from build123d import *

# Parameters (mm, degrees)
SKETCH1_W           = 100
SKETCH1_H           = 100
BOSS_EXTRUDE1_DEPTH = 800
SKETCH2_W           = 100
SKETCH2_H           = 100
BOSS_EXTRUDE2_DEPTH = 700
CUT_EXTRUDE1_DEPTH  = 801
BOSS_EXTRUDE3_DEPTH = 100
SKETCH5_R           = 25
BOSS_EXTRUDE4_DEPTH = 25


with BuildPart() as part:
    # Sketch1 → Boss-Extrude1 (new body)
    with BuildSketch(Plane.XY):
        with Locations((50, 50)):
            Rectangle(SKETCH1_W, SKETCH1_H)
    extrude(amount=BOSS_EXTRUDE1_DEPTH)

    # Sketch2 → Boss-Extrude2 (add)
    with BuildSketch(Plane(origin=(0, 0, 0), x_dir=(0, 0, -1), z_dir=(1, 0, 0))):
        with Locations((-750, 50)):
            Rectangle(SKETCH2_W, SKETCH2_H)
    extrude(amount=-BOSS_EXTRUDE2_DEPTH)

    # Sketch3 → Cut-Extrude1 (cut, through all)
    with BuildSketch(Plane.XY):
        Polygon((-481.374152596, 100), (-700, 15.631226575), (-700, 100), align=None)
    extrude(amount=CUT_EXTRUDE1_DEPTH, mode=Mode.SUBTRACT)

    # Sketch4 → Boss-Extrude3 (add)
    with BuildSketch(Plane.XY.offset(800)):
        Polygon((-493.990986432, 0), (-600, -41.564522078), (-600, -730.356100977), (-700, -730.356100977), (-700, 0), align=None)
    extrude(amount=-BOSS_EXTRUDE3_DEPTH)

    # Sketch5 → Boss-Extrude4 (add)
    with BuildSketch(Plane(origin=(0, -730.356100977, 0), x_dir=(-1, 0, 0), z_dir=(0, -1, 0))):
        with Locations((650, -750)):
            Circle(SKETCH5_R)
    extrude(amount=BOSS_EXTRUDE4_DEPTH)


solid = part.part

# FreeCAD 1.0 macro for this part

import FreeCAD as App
import Part
import Sketcher

V = App.Vector

doc = App.newDocument("Part")
body = doc.addObject("PartDesign::Body", "Body")

# Sketch on XY plane
sketch1 = body.newObject("Sketcher::SketchObject", "Sketch")
sketch1.AttachmentSupport = (doc.getObject("XY_Plane"), [""])
sketch1.MapMode = "FlatFace"
sketch1.addGeometry([
    Part.LineSegment(V(0, 100, 0), V(0, 0, 0)),
    Part.LineSegment(V(0, 0, 0), V(100, 0, 0)),
    Part.LineSegment(V(100, 0, 0), V(100, 100, 0)),
    Part.LineSegment(V(100, 100, 0), V(0, 100, 0)),
], False)
sketch1.addConstraint([
    Sketcher.Constraint("Coincident", 0, 2, 1, 1),
    Sketcher.Constraint("Coincident", 1, 2, 2, 1),
    Sketcher.Constraint("Coincident", 2, 2, 3, 1),
    Sketcher.Constraint("Coincident", 3, 2, 0, 1),
    Sketcher.Constraint("Vertical", 0),
    Sketcher.Constraint("Horizontal", 1),
    Sketcher.Constraint("Vertical", 2),
    Sketcher.Constraint("Horizontal", 3),
    Sketcher.Constraint("Coincident", 0, 2, -1, 1),
    Sketcher.Constraint("Equal", 3, 0),
    Sketcher.Constraint("DistanceX", 1, 1, 1, 2, 100.0),
])
pad1 = body.newObject("PartDesign::Pad", "Pad")
pad1.Profile = sketch1
pad1.Length = 800

# Sketch on YZ plane
sketch2 = body.newObject("Sketcher::SketchObject", "Sketch001")
sketch2.AttachmentSupport = (doc.getObject("YZ_Plane"), [""])
sketch2.MapMode = "FlatFace"
sketch2.addGeometry([
    Part.LineSegment(V(100, 800, 0), V(0, 800, 0)),
    Part.LineSegment(V(0, 800, 0), V(0, 700, 0)),
    Part.LineSegment(V(0, 700, 0), V(100, 700, 0)),
    Part.LineSegment(V(100, 700, 0), V(100, 800, 0)),
], False)
sketch2.addConstraint([
    Sketcher.Constraint("Coincident", 0, 2, 1, 1),
    Sketcher.Constraint("Coincident", 1, 2, 2, 1),
    Sketcher.Constraint("Coincident", 2, 2, 3, 1),
    Sketcher.Constraint("Coincident", 3, 2, 0, 1),
    Sketcher.Constraint("Horizontal", 0),
    Sketcher.Constraint("Vertical", 1),
    Sketcher.Constraint("Horizontal", 2),
    Sketcher.Constraint("Vertical", 3),
    Sketcher.Constraint("PointOnObject", 0, 2, -2),
    Sketcher.Constraint("Equal", 2, 1),
    Sketcher.Constraint("DistanceX", 0, 2, 0, 1, 100.0),
    Sketcher.Constraint("DistanceY", -1, 1, 0, 2, 800.0),
])
pad2 = body.newObject("PartDesign::Pad", "Pad001")
pad2.Profile = sketch2
pad2.Length = 700
pad2.Reversed = True

# Sketch on XY plane
sketch3 = body.newObject("Sketcher::SketchObject", "Sketch002")
sketch3.AttachmentSupport = (doc.getObject("XY_Plane"), [""])
sketch3.MapMode = "FlatFace"
sketch3.addGeometry([
    Part.LineSegment(V(-700, 16, 0), V(-481, 100, 0)),
    Part.LineSegment(V(-481, 100, 0), V(-700, 100, 0)),
    Part.LineSegment(V(-700, 100, 0), V(-700, 16, 0)),
], False)
sketch3.addConstraint([
    Sketcher.Constraint("Coincident", 0, 2, 1, 1),
    Sketcher.Constraint("Coincident", 1, 2, 2, 1),
    Sketcher.Constraint("Coincident", 2, 2, 0, 1),
    Sketcher.Constraint("Horizontal", 1),
    Sketcher.Constraint("Vertical", 2),
    Sketcher.Constraint("DistanceY", -1, 1, 0, 2, 100.0),
    Sketcher.Constraint("DistanceX", 1, 2, -1, 1, 700.0),
    Sketcher.Constraint("DistanceX", 1, 2, 1, 1, 218.625847),
    Sketcher.Constraint("DistanceY", 2, 2, 2, 1, 84.368773),
])
pocket1 = body.newObject("PartDesign::Pocket", "Pocket")
pocket1.Profile = sketch3
pocket1.Type = "ThroughAll"
pocket1.Reversed = True

# Sketch on XY plane
sketch4 = body.newObject("Sketcher::SketchObject", "Sketch003")
sketch4.AttachmentSupport = (doc.getObject("XY_Plane"), [""])
sketch4.MapMode = "FlatFace"
sketch4.AttachmentOffset = App.Placement(V(0, 0, 800), App.Rotation())
sketch4.addGeometry([
    Part.LineSegment(V(-600, -42, 0), V(-494, 0, 0)),  # 0
    Part.LineSegment(V(-494, 0, 0), V(-700, 0, 0)),  # 1
    Part.LineSegment(V(-700, 0, 0), V(-700, -730, 0)),  # 2
    Part.LineSegment(V(-700, -730, 0), V(-600, -730, 0)),  # 3
    Part.LineSegment(V(-600, -730, 0), V(-600, -42, 0)),  # 4
], False)
sketch4.addConstraint([
    Sketcher.Constraint("Coincident", 0, 2, 1, 1),
    Sketcher.Constraint("Coincident", 1, 2, 2, 1),
    Sketcher.Constraint("Coincident", 2, 2, 3, 1),
    Sketcher.Constraint("Coincident", 3, 2, 4, 1),
    Sketcher.Constraint("Coincident", 4, 2, 0, 1),
    Sketcher.Constraint("Horizontal", 1),
    Sketcher.Constraint("Vertical", 2),
    Sketcher.Constraint("Horizontal", 3),
    Sketcher.Constraint("Vertical", 4),
    Sketcher.Constraint("PointOnObject", 0, 2, -1),
    Sketcher.Constraint("DistanceX", 3, 1, 3, 2, 100.0),
    Sketcher.Constraint("DistanceX", 1, 2, -1, 1, 700.0),
    Sketcher.Constraint("DistanceY", 2, 2, 2, 1, 730.356101),
    Sketcher.Constraint("DistanceY", 4, 1, 4, 2, 688.791579),
    Sketcher.Constraint("Distance", 0, 113.866239),
])
pad3 = body.newObject("PartDesign::Pad", "Pad002")
pad3.Profile = sketch4
pad3.Length = 100
pad3.Reversed = True

# Sketch on XZ plane
sketch5 = body.newObject("Sketcher::SketchObject", "Sketch004")
sketch5.AttachmentSupport = (doc.getObject("XZ_Plane"), [""])
sketch5.MapMode = "FlatFace"
sketch5.AttachmentOffset = App.Placement(V(0, 0, 730.356101), App.Rotation())
sketch5.addGeometry(Part.Circle(V(-650, 750, 0), V(0, 0, 1), 25), False)
sketch5.addConstraint([
    Sketcher.Constraint("Diameter", 0, 50.0),
    Sketcher.Constraint("DistanceX", 0, 3, -1, 1, 650.0),
    Sketcher.Constraint("DistanceY", -1, 1, 0, 3, 750.0),
])
pad4 = body.newObject("PartDesign::Pad", "Pad003")
pad4.Profile = sketch5
pad4.Length = 25

doc.recompute()
